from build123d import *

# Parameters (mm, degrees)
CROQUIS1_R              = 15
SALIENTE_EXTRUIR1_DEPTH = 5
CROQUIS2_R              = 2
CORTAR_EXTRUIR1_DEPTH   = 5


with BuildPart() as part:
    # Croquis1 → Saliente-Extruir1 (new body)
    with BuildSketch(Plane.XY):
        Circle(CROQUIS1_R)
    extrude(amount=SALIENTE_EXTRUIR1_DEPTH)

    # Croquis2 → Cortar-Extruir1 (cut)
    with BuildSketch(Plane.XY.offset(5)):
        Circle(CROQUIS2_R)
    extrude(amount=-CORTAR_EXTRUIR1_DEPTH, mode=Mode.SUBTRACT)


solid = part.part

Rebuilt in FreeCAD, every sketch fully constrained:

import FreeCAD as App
import Part
import Sketcher

V = App.Vector

doc = App.newDocument("Part")
body = doc.addObject("PartDesign::Body", "Body")

# Sketch on XY plane
sketch1 = body.newObject("Sketcher::SketchObject", "Sketch")
sketch1.AttachmentSupport = (doc.getObject("XY_Plane"), [""])
sketch1.MapMode = "FlatFace"
sketch1.addGeometry(Part.Circle(V(0, 0, 0), V(0, 0, 1), 15), False)
sketch1.addConstraint([
    Sketcher.Constraint("Coincident", 0, 3, -1, 1),
    Sketcher.Constraint("Diameter", 0, 30.0),
])
pad1 = body.newObject("PartDesign::Pad", "Pad")
pad1.Profile = sketch1
pad1.Length = 5

# Sketch on XY plane
sketch2 = body.newObject("Sketcher::SketchObject", "Sketch001")
sketch2.AttachmentSupport = (doc.getObject("XY_Plane"), [""])
sketch2.MapMode = "FlatFace"
sketch2.AttachmentOffset = App.Placement(V(0, 0, 5), App.Rotation())
sketch2.addGeometry(Part.Circle(V(0, 0, 0), V(0, 0, 1), 2), False)
sketch2.addConstraint([
    Sketcher.Constraint("Coincident", 0, 3, -1, 1),
    Sketcher.Constraint("Diameter", 0, 4.0),
])
pocket1 = body.newObject("PartDesign::Pocket", "Pocket")
pocket1.Profile = sketch2
pocket1.Length = 5

doc.recompute()
